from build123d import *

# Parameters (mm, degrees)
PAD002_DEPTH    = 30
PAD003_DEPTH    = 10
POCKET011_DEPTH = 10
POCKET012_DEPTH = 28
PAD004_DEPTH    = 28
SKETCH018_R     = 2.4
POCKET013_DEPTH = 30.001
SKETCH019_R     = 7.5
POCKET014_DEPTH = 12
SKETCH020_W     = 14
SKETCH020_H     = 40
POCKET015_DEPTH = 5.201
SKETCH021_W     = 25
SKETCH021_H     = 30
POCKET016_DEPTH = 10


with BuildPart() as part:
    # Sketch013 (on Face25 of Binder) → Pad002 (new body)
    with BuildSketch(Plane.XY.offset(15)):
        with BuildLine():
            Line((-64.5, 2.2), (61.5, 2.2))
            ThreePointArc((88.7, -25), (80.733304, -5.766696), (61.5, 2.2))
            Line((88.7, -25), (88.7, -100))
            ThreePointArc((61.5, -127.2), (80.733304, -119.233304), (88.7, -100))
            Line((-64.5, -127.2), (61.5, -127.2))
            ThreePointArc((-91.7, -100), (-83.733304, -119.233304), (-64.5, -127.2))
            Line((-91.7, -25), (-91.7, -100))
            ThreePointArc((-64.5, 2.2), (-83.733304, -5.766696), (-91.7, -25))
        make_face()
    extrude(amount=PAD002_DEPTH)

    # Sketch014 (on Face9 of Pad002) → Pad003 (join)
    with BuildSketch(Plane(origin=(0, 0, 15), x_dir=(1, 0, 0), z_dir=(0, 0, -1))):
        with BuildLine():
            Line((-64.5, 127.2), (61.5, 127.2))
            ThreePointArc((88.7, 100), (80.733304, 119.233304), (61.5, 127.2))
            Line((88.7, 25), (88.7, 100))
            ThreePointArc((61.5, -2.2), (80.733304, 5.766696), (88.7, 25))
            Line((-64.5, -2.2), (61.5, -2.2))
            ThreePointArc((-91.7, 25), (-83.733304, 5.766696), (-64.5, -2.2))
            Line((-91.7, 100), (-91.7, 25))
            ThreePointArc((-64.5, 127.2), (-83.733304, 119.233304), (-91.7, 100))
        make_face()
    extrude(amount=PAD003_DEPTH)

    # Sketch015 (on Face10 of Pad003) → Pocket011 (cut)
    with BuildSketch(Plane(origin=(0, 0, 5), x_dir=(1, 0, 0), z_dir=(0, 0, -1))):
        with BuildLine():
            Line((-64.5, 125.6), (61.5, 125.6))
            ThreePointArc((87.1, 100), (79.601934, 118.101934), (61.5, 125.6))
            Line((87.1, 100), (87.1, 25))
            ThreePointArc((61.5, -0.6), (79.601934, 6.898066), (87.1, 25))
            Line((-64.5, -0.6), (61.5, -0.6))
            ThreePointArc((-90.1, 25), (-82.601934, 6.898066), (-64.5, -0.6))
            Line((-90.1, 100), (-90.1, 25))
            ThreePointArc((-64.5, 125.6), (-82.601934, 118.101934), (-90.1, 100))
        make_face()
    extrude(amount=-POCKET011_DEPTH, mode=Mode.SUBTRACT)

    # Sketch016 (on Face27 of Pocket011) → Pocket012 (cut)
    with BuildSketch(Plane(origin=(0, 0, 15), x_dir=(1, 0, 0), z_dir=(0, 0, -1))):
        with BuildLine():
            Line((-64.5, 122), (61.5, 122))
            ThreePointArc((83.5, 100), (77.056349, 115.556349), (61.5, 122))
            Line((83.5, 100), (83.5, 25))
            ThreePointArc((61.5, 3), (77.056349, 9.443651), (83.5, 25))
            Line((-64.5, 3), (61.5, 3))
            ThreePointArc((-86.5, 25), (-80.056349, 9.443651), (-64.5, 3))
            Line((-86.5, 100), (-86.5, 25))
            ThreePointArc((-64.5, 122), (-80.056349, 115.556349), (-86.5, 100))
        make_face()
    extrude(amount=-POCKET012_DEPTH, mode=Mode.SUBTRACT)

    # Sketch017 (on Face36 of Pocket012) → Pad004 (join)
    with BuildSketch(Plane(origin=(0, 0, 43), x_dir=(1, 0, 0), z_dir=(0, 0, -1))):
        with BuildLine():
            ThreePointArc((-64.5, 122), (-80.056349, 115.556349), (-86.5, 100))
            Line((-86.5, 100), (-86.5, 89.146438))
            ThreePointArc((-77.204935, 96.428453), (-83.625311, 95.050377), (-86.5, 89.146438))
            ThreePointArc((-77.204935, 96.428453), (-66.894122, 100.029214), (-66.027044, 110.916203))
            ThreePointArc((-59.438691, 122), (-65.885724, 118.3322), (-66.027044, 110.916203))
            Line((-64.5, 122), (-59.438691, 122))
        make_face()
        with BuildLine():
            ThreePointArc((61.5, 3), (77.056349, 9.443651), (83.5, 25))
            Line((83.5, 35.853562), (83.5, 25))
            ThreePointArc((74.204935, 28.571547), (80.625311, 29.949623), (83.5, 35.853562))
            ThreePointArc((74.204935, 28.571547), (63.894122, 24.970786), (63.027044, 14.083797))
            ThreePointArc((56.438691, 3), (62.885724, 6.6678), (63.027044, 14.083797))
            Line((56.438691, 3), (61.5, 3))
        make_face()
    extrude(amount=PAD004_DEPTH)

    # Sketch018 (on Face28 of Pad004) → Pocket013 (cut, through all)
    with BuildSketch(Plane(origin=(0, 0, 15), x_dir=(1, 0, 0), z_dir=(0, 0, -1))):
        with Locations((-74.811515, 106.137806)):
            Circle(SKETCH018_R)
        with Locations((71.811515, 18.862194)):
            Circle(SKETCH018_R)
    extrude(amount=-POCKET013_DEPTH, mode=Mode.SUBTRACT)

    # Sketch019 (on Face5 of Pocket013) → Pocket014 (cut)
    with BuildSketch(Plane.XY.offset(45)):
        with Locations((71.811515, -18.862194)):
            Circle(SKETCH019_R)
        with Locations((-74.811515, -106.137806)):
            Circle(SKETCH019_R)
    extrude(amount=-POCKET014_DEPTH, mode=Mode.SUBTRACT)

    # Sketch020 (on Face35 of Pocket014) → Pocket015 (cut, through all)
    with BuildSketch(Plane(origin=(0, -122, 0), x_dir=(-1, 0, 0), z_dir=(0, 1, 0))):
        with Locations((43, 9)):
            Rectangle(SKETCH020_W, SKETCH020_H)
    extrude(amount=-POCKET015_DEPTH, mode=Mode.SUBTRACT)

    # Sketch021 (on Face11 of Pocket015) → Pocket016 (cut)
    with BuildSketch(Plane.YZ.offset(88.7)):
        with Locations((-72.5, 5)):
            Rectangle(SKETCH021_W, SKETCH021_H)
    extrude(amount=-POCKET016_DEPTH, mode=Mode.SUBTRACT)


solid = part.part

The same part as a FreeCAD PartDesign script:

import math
import FreeCAD as App
import Part
import Sketcher

V = App.Vector

doc = App.newDocument("Part")
body = doc.addObject("PartDesign::Body", "Body")

sketch1 = body.newObject("Sketcher::SketchObject", "Sketch")
sketch1.AttachmentSupport = (doc.getObject("XY_Plane"), [""])
sketch1.MapMode = "FlatFace"
sketch1.AttachmentOffset = App.Placement(V(0, 0, 15), App.Rotation())
sketch1.addGeometry(Part.LineSegment(V(62, 2, 0), V(-64, 2, 0)), False)
sketch1.addGeometry(Part.ArcOfCircle(Part.Circle(V(-64, -25, 0), V(0, 0, 1), 27), math.radians(90), math.radians(180)), False)
sketch1.addGeometry(Part.LineSegment(V(-92, -25, 0), V(-92, -100, 0)), False)
sketch1.addGeometry(Part.ArcOfCircle(Part.Circle(V(-64, -100, 0), V(0, 0, 1), 27), math.radians(-180), math.radians(-90)), False)
sketch1.addGeometry(Part.LineSegment(V(-64, -127, 0), V(62, -127, 0)), False)
sketch1.addGeometry(Part.ArcOfCircle(Part.Circle(V(61, -100, 0), V(0, 0, 1), 27), math.radians(-90), math.radians(0)), False)
sketch1.addGeometry(Part.LineSegment(V(89, -100, 0), V(89, -25, 0)), False)
sketch1.addGeometry(Part.ArcOfCircle(Part.Circle(V(61, -25, 0), V(0, 0, 1), 27), math.radians(0), math.radians(90)), False)
sketch1.addConstraint(Sketcher.Constraint("Tangent", 0, 2, 1, 1))
sketch1.addConstraint(Sketcher.Constraint("Tangent", 1, 2, 2, 1))
sketch1.addConstraint(Sketcher.Constraint("Tangent", 2, 2, 3, 1))
sketch1.addConstraint(Sketcher.Constraint("Tangent", 3, 2, 4, 1))
sketch1.addConstraint(Sketcher.Constraint("Tangent", 4, 2, 5, 1))
sketch1.addConstraint(Sketcher.Constraint("Tangent", 5, 2, 6, 1))
sketch1.addConstraint(Sketcher.Constraint("Tangent", 6, 2, 7, 1))
sketch1.addConstraint(Sketcher.Constraint("Tangent", 7, 2, 0, 1))
sketch1.addConstraint(Sketcher.Constraint("Horizontal", 0))
sketch1.addConstraint(Sketcher.Constraint("Vertical", 2))
sketch1.addConstraint(Sketcher.Constraint("Horizontal", 4))
sketch1.addConstraint(Sketcher.Constraint("Vertical", 6))
sketch1.addConstraint(Sketcher.Constraint("Equal", 1, 3))
sketch1.addConstraint(Sketcher.Constraint("Equal", 3, 5))
sketch1.addConstraint(Sketcher.Constraint("Equal", 5, 7))
sketch1.addConstraint(Sketcher.Constraint("Radius", 1, 27.200002))
sketch1.addConstraint(Sketcher.Constraint("DistanceX", 0, 2, 0, 1, 126.0))
sketch1.addConstraint(Sketcher.Constraint("DistanceY", 2, 2, 2, 1, 75.0))
sketch1.addConstraint(Sketcher.Constraint("DistanceY", 1, 3, -1, 1, 25.000002))
sketch1.addConstraint(Sketcher.Constraint("DistanceX", 1, 3, -1, 1, 64.499998))
pad1 = body.newObject("PartDesign::Pad", "Pad")
pad1.Profile = sketch1
pad1.Length = 30

sketch2 = body.newObject("Sketcher::SketchObject", "Sketch001")
sketch2.AttachmentSupport = (doc.getObject("XY_Plane"), [""])
sketch2.MapMode = "FlatFace"
sketch2.AttachmentOffset = App.Placement(V(0, 0, 15), App.Rotation())
sketch2.addGeometry(Part.LineSegment(V(62, -127, 0), V(-64, -127, 0)), False)
sketch2.addGeometry(Part.ArcOfCircle(Part.Circle(V(-64, -100, 0), V(0, 0, 1), 27), math.radians(-180), math.radians(-90)), False)
sketch2.addGeometry(Part.LineSegment(V(-92, -100, 0), V(-92, -25, 0)), False)
sketch2.addGeometry(Part.ArcOfCircle(Part.Circle(V(-64, -25, 0), V(0, 0, 1), 27), math.radians(90), math.radians(180)), False)
sketch2.addGeometry(Part.LineSegment(V(-64, 2, 0), V(62, 2, 0)), False)
sketch2.addGeometry(Part.ArcOfCircle(Part.Circle(V(61, -25, 0), V(0, 0, 1), 27), math.radians(0), math.radians(90)), False)
sketch2.addGeometry(Part.LineSegment(V(89, -25, 0), V(89, -100, 0)), False)
sketch2.addGeometry(Part.ArcOfCircle(Part.Circle(V(61, -100, 0), V(0, 0, 1), 27), math.radians(-90), math.radians(0)), False)
sketch2.addConstraint(Sketcher.Constraint("Tangent", 0, 2, 1, 2))
sketch2.addConstraint(Sketcher.Constraint("Tangent", 1, 1, 2, 1))
sketch2.addConstraint(Sketcher.Constraint("Tangent", 2, 2, 3, 2))
sketch2.addConstraint(Sketcher.Constraint("Tangent", 3, 1, 4, 1))
sketch2.addConstraint(Sketcher.Constraint("Tangent", 4, 2, 5, 2))
sketch2.addConstraint(Sketcher.Constraint("Tangent", 5, 1, 6, 1))
sketch2.addConstraint(Sketcher.Constraint("Tangent", 6, 2, 7, 2))
sketch2.addConstraint(Sketcher.Constraint("Tangent", 7, 1, 0, 1))
sketch2.addConstraint(Sketcher.Constraint("Horizontal", 0))
sketch2.addConstraint(Sketcher.Constraint("Vertical", 2))
sketch2.addConstraint(Sketcher.Constraint("Horizontal", 4))
sketch2.addConstraint(Sketcher.Constraint("Vertical", 6))
sketch2.addConstraint(Sketcher.Constraint("Equal", 1, 3))
sketch2.addConstraint(Sketcher.Constraint("Equal", 3, 5))
sketch2.addConstraint(Sketcher.Constraint("Equal", 5, 7))
sketch2.addConstraint(Sketcher.Constraint("Radius", 1, 27.200002))
sketch2.addConstraint(Sketcher.Constraint("DistanceX", 0, 2, 0, 1, 126.0))
sketch2.addConstraint(Sketcher.Constraint("DistanceY", 2, 1, 2, 2, 75.0))
sketch2.addConstraint(Sketcher.Constraint("DistanceY", 1, 3, -1, 1, 99.999998))
sketch2.addConstraint(Sketcher.Constraint("DistanceX", 1, 3, -1, 1, 64.499998))
pad2 = body.newObject("PartDesign::Pad", "Pad001")
pad2.Profile = sketch2
pad2.Length = 10
pad2.Reversed = True

sketch3 = body.newObject("Sketcher::SketchObject", "Sketch002")
sketch3.AttachmentSupport = (doc.getObject("XY_Plane"), [""])
sketch3.MapMode = "FlatFace"
sketch3.AttachmentOffset = App.Placement(V(0, 0, 5), App.Rotation())
sketch3.addGeometry(Part.LineSegment(V(62, -126, 0), V(-64, -126, 0)), False)
sketch3.addGeometry(Part.ArcOfCircle(Part.Circle(V(-65, -100, 0), V(0, 0, 1), 26), math.radians(180), math.radians(270)), False)
sketch3.addGeometry(Part.LineSegment(V(-90, -100, 0), V(-90, -25, 0)), False)
sketch3.addGeometry(Part.ArcOfCircle(Part.Circle(V(-65, -25, 0), V(0, 0, 1), 26), math.radians(90), math.radians(180)), False)
sketch3.addGeometry(Part.LineSegment(V(-64, 1, 0), V(62, 1, 0)), False)
sketch3.addGeometry(Part.ArcOfCircle(Part.Circle(V(62, -25, 0), V(0, 0, 1), 26), math.radians(0), math.radians(90)), False)
sketch3.addGeometry(Part.LineSegment(V(87, -25, 0), V(87, -100, 0)), False)
sketch3.addGeometry(Part.ArcOfCircle(Part.Circle(V(62, -100, 0), V(0, 0, 1), 26), math.radians(-90), math.radians(0)), False)
sketch3.addConstraint(Sketcher.Constraint("Tangent", 0, 2, 1, 2))
sketch3.addConstraint(Sketcher.Constraint("Tangent", 1, 1, 2, 1))
sketch3.addConstraint(Sketcher.Constraint("Tangent", 2, 2, 3, 2))
sketch3.addConstraint(Sketcher.Constraint("Tangent", 3, 1, 4, 1))
sketch3.addConstraint(Sketcher.Constraint("Tangent", 4, 2, 5, 2))
sketch3.addConstraint(Sketcher.Constraint("Tangent", 5, 1, 6, 1))
sketch3.addConstraint(Sketcher.Constraint("Tangent", 6, 2, 7, 2))
sketch3.addConstraint(Sketcher.Constraint("Tangent", 7, 1, 0, 1))
sketch3.addConstraint(Sketcher.Constraint("Horizontal", 0))
sketch3.addConstraint(Sketcher.Constraint("Vertical", 2))
sketch3.addConstraint(Sketcher.Constraint("Horizontal", 4))
sketch3.addConstraint(Sketcher.Constraint("Vertical", 6))
sketch3.addConstraint(Sketcher.Constraint("Equal", 1, 3))
sketch3.addConstraint(Sketcher.Constraint("Equal", 3, 5))
sketch3.addConstraint(Sketcher.Constraint("Equal", 5, 7))
sketch3.addConstraint(Sketcher.Constraint("Radius", 1, 25.599999))
sketch3.addConstraint(Sketcher.Constraint("DistanceX", 0, 2, 0, 1, 126.0))
sketch3.addConstraint(Sketcher.Constraint("DistanceY", 2, 1, 2, 2, 75.0))
sketch3.addConstraint(Sketcher.Constraint("DistanceY", 1, 3, -1, 1, 100.000001))
sketch3.addConstraint(Sketcher.Constraint("DistanceX", 1, 3, -1, 1, 64.500001))
pocket1 = body.newObject("PartDesign::Pocket", "Pocket")
pocket1.Profile = sketch3
pocket1.Length = 10
pocket1.Reversed = True

sketch4 = body.newObject("Sketcher::SketchObject", "Sketch003")
sketch4.AttachmentSupport = (doc.getObject("XY_Plane"), [""])
sketch4.MapMode = "FlatFace"
sketch4.AttachmentOffset = App.Placement(V(0, 0, 15), App.Rotation())
sketch4.addGeometry(Part.LineSegment(V(62, -122, 0), V(-64, -122, 0)), False)
sketch4.addGeometry(Part.ArcOfCircle(Part.Circle(V(-64, -100, 0), V(0, 0, 1), 22), math.radians(-180), math.radians(-90)), False)
sketch4.addGeometry(Part.LineSegment(V(-86, -100, 0), V(-86, -25, 0)), False)
sketch4.addGeometry(Part.ArcOfCircle(Part.Circle(V(-64, -25, 0), V(0, 0, 1), 22), math.radians(90), math.radians(180)), False)
sketch4.addGeometry(Part.LineSegment(V(-64, -3, 0), V(62, -3, 0)), False)
sketch4.addGeometry(Part.ArcOfCircle(Part.Circle(V(61, -25, 0), V(0, 0, 1), 22), math.radians(0), math.radians(90)), False)
sketch4.addGeometry(Part.LineSegment(V(84, -25, 0), V(84, -100, 0)), False)
sketch4.addGeometry(Part.ArcOfCircle(Part.Circle(V(61, -100, 0), V(0, 0, 1), 22), math.radians(-90), math.radians(0)), False)
sketch4.addConstraint(Sketcher.Constraint("Tangent", 0, 2, 1, 2))
sketch4.addConstraint(Sketcher.Constraint("Tangent", 1, 1, 2, 1))
sketch4.addConstraint(Sketcher.Constraint("Tangent", 2, 2, 3, 2))
sketch4.addConstraint(Sketcher.Constraint("Tangent", 3, 1, 4, 1))
sketch4.addConstraint(Sketcher.Constraint("Tangent", 4, 2, 5, 2))
sketch4.addConstraint(Sketcher.Constraint("Tangent", 5, 1, 6, 1))
sketch4.addConstraint(Sketcher.Constraint("Tangent", 6, 2, 7, 2))
sketch4.addConstraint(Sketcher.Constraint("Tangent", 7, 1, 0, 1))
sketch4.addConstraint(Sketcher.Constraint("Horizontal", 0))
sketch4.addConstraint(Sketcher.Constraint("Vertical", 2))
sketch4.addConstraint(Sketcher.Constraint("Horizontal", 4))
sketch4.addConstraint(Sketcher.Constraint("Vertical", 6))
sketch4.addConstraint(Sketcher.Constraint("Equal", 1, 3))
sketch4.addConstraint(Sketcher.Constraint("Equal", 3, 5))
sketch4.addConstraint(Sketcher.Constraint("Equal", 5, 7))
sketch4.addConstraint(Sketcher.Constraint("Radius", 1, 22.000001))
sketch4.addConstraint(Sketcher.Constraint("DistanceX", 0, 2, 0, 1, 126.0))
sketch4.addConstraint(Sketcher.Constraint("DistanceY", 2, 1, 2, 2, 75.0))
sketch4.addConstraint(Sketcher.Constraint("DistanceY", 1, 3, -1, 1, 99.999999))
sketch4.addConstraint(Sketcher.Constraint("DistanceX", 1, 3, -1, 1, 64.499999))
pocket2 = body.newObject("PartDesign::Pocket", "Pocket001")
pocket2.Profile = sketch4
pocket2.Length = 28
pocket2.Reversed = True

sketch5 = body.newObject("Sketcher::SketchObject", "Sketch004")
sketch5.AttachmentSupport = (doc.getObject("XY_Plane"), [""])
sketch5.MapMode = "FlatFace"
sketch5.AttachmentOffset = App.Placement(V(0, 0, 43), App.Rotation())
sketch5.addGeometry(Part.ArcOfCircle(Part.Circle(V(-64, -100, 0), V(0, 0, 1), 22), math.radians(-180), math.radians(-90)), False)
sketch5.addGeometry(Part.LineSegment(V(-86, -100, 0), V(-86, -89, 0)), False)
sketch5.addGeometry(Part.ArcOfCircle(Part.Circle(V(-79, -89, 0), V(0, 0, 1), 8), math.radians(-180), math.radians(-76)), False)
sketch5.addGeometry(Part.ArcOfCircle(Part.Circle(V(-75, -106, 0), V(0, 0, 1), 10), math.radians(-29), math.radians(104)), False)
sketch5.addGeometry(Part.ArcOfCircle(Part.Circle(V(-59, -114, 0), V(0, 0, 1), 8), math.radians(151), math.radians(270)), False)
sketch5.addGeometry(Part.LineSegment(V(-59, -122, 0), V(-64, -122, 0)), False)
sketch5.addGeometry(Part.ArcOfCircle(Part.Circle(V(61, -25, 0), V(0, 0, 1), 22), math.radians(0), math.radians(90)), False)
sketch5.addGeometry(Part.LineSegment(V(84, -25, 0), V(84, -36, 0)), False)
sketch5.addGeometry(Part.ArcOfCircle(Part.Circle(V(76, -36, 0), V(0, 0, 1), 8), math.radians(0), math.radians(104)), False)
sketch5.addGeometry(Part.ArcOfCircle(Part.Circle(V(72, -19, 0), V(0, 0, 1), 10), math.radians(151), math.radians(284)), False)
sketch5.addGeometry(Part.ArcOfCircle(Part.Circle(V(56, -11, 0), V(0, 0, 1), 8), math.radians(-29), math.radians(90)), False)
sketch5.addGeometry(Part.LineSegment(V(56, -3, 0), V(62, -3, 0)), False)
sketch5.addConstraint(Sketcher.Constraint("Tangent", 0, 1, 1, 1))
sketch5.addConstraint(Sketcher.Constraint("Tangent", 1, 2, 2, 1))
sketch5.addConstraint(Sketcher.Constraint("Tangent", 2, 2, 3, 2))
sketch5.addConstraint(Sketcher.Constraint("Tangent", 3, 1, 4, 1))
sketch5.addConstraint(Sketcher.Constraint("Tangent", 4, 2, 5, 1))
sketch5.addConstraint(Sketcher.Constraint("Tangent", 5, 2, 0, 2))
sketch5.addConstraint(Sketcher.Constraint("Tangent", 6, 1, 7, 1))
sketch5.addConstraint(Sketcher.Constraint("Tangent", 7, 2, 8, 1))
sketch5.addConstraint(Sketcher.Constraint("Tangent", 8, 2, 9, 2))
sketch5.addConstraint(Sketcher.Constraint("Tangent", 9, 1, 10, 1))
sketch5.addConstraint(Sketcher.Constraint("Tangent", 10, 2, 11, 1))
sketch5.addConstraint(Sketcher.Constraint("Tangent", 11, 2, 6, 2))
sketch5.addConstraint(Sketcher.Constraint("Vertical", 1))
sketch5.addConstraint(Sketcher.Constraint("Horizontal", 5))
sketch5.addConstraint(Sketcher.Constraint("Vertical", 7))
sketch5.addConstraint(Sketcher.Constraint("Horizontal", 11))
sketch5.addConstraint(Sketcher.Constraint("Equal", 2, 4))
sketch5.addConstraint(Sketcher.Constraint("Equal", 0, 6))
sketch5.addConstraint(Sketcher.Constraint("Equal", 4, 8))
sketch5.addConstraint(Sketcher.Constraint("Equal", 3, 9))
sketch5.addConstraint(Sketcher.Constraint("Equal", 8, 10))
sketch5.addConstraint(Sketcher.Constraint("Equal", 5, 11))
sketch5.addConstraint(Sketcher.Constraint("Equal", 1, 7))
sketch5.addConstraint(Sketcher.Constraint("Radius", 0, 22.000001))
sketch5.addConstraint(Sketcher.Constraint("Radius", 3, 10.0))
sketch5.addConstraint(Sketcher.Constraint("Radius", 2, 7.5))
sketch5.addConstraint(Sketcher.Constraint("DistanceY", 0, 3, -1, 1, 99.999999))
sketch5.addConstraint(Sketcher.Constraint("DistanceX", 2, 3, -1, 1, 79.0))
sketch5.addConstraint(Sketcher.Constraint("DistanceY", 6, 3, -1, 1, 25.000001))
sketch5.addConstraint(Sketcher.Constraint("DistanceX", -1, 1, 8, 3, 76.0))
sketch5.addConstraint(Sketcher.Constraint("DistanceX", 5, 2, 5, 1, 5.061309))
sketch5.addConstraint(Sketcher.Constraint("DistanceY", 1, 1, 1, 2, 10.853562))
pad3 = body.newObject("PartDesign::Pad", "Pad002")
pad3.Profile = sketch5
pad3.Length = 28
pad3.Reversed = True

sketch6 = body.newObject("Sketcher::SketchObject", "Sketch005")
sketch6.AttachmentSupport = (doc.getObject("XY_Plane"), [""])
sketch6.MapMode = "FlatFace"
sketch6.AttachmentOffset = App.Placement(V(0, 0, 15), App.Rotation())
sketch6.addGeometry(Part.Circle(V(-74.8, -106.1, 0), V(0, 0, 1), 2.4), False)
sketch6.addGeometry(Part.Circle(V(71.8, -18.9, 0), V(0, 0, 1), 2.4), False)
sketch6.addConstraint(Sketcher.Constraint("Equal", 0, 1))
sketch6.addConstraint(Sketcher.Constraint("Diameter", 0, 4.8))
sketch6.addConstraint(Sketcher.Constraint("DistanceX", 0, 3, 1, 3, 146.62303))
sketch6.addConstraint(Sketcher.Constraint("DistanceY", 0, 3, 1, 3, 87.275612))
sketch6.addConstraint(Sketcher.Constraint("DistanceX", 0, 3, -1, 1, 74.811515))
sketch6.addConstraint(Sketcher.Constraint("DistanceY", 0, 3, -1, 1, 106.137806))
pocket3 = body.newObject("PartDesign::Pocket", "Pocket002")
pocket3.Profile = sketch6
pocket3.Type = "ThroughAll"
pocket3.Reversed = True

sketch7 = body.newObject("Sketcher::SketchObject", "Sketch006")
sketch7.AttachmentSupport = (doc.getObject("XY_Plane"), [""])
sketch7.MapMode = "FlatFace"
sketch7.AttachmentOffset = App.Placement(V(0, 0, 45), App.Rotation())
sketch7.addGeometry(Part.Circle(V(72, -19, 0), V(0, 0, 1), 8), False)
sketch7.addGeometry(Part.Circle(V(-75, -106, 0), V(0, 0, 1), 8), False)
sketch7.addConstraint(Sketcher.Constraint("Equal", 0, 1))
sketch7.addConstraint(Sketcher.Constraint("Diameter", 0, 15.0))
sketch7.addConstraint(Sketcher.Constraint("DistanceX", 1, 3, 0, 3, 146.62303))
sketch7.addConstraint(Sketcher.Constraint("DistanceY", 1, 3, 0, 3, 87.275612))
sketch7.addConstraint(Sketcher.Constraint("DistanceX", -1, 1, 0, 3, 71.811515))
sketch7.addConstraint(Sketcher.Constraint("DistanceY", 0, 3, -1, 1, 18.862194))
pocket4 = body.newObject("PartDesign::Pocket", "Pocket003")
pocket4.Profile = sketch7
pocket4.Length = 12

sketch8 = body.newObject("Sketcher::SketchObject", "Sketch007")
sketch8.AttachmentSupport = (doc.getObject("XZ_Plane"), [""])
sketch8.MapMode = "FlatFace"
sketch8.AttachmentOffset = App.Placement(V(0, 0, 122), App.Rotation())
sketch8.addGeometry(Part.LineSegment(V(-36, 29, 0), V(-36, -11, 0)), False)
sketch8.addGeometry(Part.LineSegment(V(-36, -11, 0), V(-50, -11, 0)), False)
sketch8.addGeometry(Part.LineSegment(V(-50, -11, 0), V(-50, 29, 0)), False)
sketch8.addGeometry(Part.LineSegment(V(-50, 29, 0), V(-36, 29, 0)), False)
sketch8.addConstraint(Sketcher.Constraint("Coincident", 0, 2, 1, 1))
sketch8.addConstraint(Sketcher.Constraint("Coincident", 1, 2, 2, 1))
sketch8.addConstraint(Sketcher.Constraint("Coincident", 2, 2, 3, 1))
sketch8.addConstraint(Sketcher.Constraint("Coincident", 3, 2, 0, 1))
sketch8.addConstraint(Sketcher.Constraint("Vertical", 0))
sketch8.addConstraint(Sketcher.Constraint("Horizontal", 1))
sketch8.addConstraint(Sketcher.Constraint("Vertical", 2))
sketch8.addConstraint(Sketcher.Constraint("Horizontal", 3))
sketch8.addConstraint(Sketcher.Constraint("DistanceX", 1, 2, 1, 1, 14.0))
sketch8.addConstraint(Sketcher.Constraint("DistanceY", 0, 2, 0, 1, 40.0))
sketch8.addConstraint(Sketcher.Constraint("DistanceX", 0, 2, -1, 1, 36.0))
sketch8.addConstraint(Sketcher.Constraint("DistanceY", 0, 2, -1, 1, 11.0))
pocket5 = body.newObject("PartDesign::Pocket", "Pocket004")
pocket5.Profile = sketch8
pocket5.Type = "ThroughAll"
pocket5.Reversed = True

sketch9 = body.newObject("Sketcher::SketchObject", "Sketch008")
sketch9.AttachmentSupport = (doc.getObject("YZ_Plane"), [""])
sketch9.MapMode = "FlatFace"
sketch9.AttachmentOffset = App.Placement(V(0, 0, 88.7), App.Rotation())
sketch9.addGeometry(Part.LineSegment(V(-85, 20, 0), V(-85, -10, 0)), False)
sketch9.addGeometry(Part.LineSegment(V(-85, -10, 0), V(-60, -10, 0)), False)
sketch9.addGeometry(Part.LineSegment(V(-60, -10, 0), V(-60, 20, 0)), False)
sketch9.addGeometry(Part.LineSegment(V(-60, 20, 0), V(-85, 20, 0)), False)
sketch9.addConstraint(Sketcher.Constraint("Coincident", 0, 2, 1, 1))
sketch9.addConstraint(Sketcher.Constraint("Coincident", 1, 2, 2, 1))
sketch9.addConstraint(Sketcher.Constraint("Coincident", 2, 2, 3, 1))
sketch9.addConstraint(Sketcher.Constraint("Coincident", 3, 2, 0, 1))
sketch9.addConstraint(Sketcher.Constraint("Vertical", 0))
sketch9.addConstraint(Sketcher.Constraint("Horizontal", 1))
sketch9.addConstraint(Sketcher.Constraint("Vertical", 2))
sketch9.addConstraint(Sketcher.Constraint("Horizontal", 3))
sketch9.addConstraint(Sketcher.Constraint("DistanceX", 1, 1, 1, 2, 25.0))
sketch9.addConstraint(Sketcher.Constraint("DistanceY", 0, 2, 0, 1, 30.0))
sketch9.addConstraint(Sketcher.Constraint("DistanceX", 0, 2, -1, 1, 85.0))
sketch9.addConstraint(Sketcher.Constraint("DistanceY", 0, 2, -1, 1, 10.0))
pocket6 = body.newObject("PartDesign::Pocket", "Pocket005")
pocket6.Profile = sketch9
pocket6.Length = 10

doc.recompute()
